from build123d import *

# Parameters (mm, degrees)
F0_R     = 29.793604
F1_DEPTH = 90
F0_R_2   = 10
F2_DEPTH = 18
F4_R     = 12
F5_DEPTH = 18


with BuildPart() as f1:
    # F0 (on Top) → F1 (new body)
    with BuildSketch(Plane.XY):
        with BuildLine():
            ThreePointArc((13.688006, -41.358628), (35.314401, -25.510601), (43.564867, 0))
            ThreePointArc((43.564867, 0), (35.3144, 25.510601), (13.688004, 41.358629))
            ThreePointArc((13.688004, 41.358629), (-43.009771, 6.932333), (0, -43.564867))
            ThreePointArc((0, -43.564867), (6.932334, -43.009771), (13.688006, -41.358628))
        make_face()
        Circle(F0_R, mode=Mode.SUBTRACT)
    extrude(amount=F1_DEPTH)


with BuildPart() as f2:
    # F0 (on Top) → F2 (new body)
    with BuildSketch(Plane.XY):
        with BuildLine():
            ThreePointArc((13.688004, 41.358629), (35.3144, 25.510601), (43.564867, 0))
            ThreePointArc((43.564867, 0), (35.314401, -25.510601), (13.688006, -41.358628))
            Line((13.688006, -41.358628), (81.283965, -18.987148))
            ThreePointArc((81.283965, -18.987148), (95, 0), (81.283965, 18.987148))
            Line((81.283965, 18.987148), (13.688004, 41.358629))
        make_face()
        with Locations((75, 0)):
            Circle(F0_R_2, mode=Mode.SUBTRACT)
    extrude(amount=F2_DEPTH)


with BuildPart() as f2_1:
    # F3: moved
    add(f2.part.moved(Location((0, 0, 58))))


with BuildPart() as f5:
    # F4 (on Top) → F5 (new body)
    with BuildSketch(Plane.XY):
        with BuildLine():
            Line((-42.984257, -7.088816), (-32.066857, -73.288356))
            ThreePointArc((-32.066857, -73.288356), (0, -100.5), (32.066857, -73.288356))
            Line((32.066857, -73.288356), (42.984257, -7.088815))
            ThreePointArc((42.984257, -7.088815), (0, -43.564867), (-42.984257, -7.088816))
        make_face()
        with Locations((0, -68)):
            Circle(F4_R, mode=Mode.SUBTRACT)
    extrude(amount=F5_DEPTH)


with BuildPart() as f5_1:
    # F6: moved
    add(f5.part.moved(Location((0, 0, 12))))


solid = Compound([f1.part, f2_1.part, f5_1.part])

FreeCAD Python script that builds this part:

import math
import FreeCAD as App
import Part
import Sketcher

V = App.Vector

doc = App.newDocument("Part")
params = doc.addObject("Spreadsheet::Sheet", "Params")
for row, (alias, value) in enumerate([
    ("pad1_length", "90 mm"),
    ("sketch2_diameter", "20 mm"),
    ("sketch2_radius", "20 mm"),
    ("pad2_length", "18 mm"),
    ("sketch3_diameter", "24 mm"),
    ("sketch3_radius", "32.5 mm"),
    ("pad3_length", "18 mm"),
], start=1):
    params.set(f"A{row}", alias)
    params.set(f"B{row}", "=" + value)
    params.setAlias(f"B{row}", alias)

body = doc.addObject("PartDesign::Body", "Body")

sketch1 = doc.addObject("Sketcher::SketchObject", "Sketch")
body.addObject(sketch1)
sketch1.AttachmentSupport = (doc.XY_Plane, [""])
sketch1.MapMode = "FlatFace"
sketch1.addGeometry(Part.ArcOfCircle(Part.Circle(V(0.000003, -0.000002, 0), V(0, 0, 1), 43.564864), math.radians(-71.687582), math.radians(0.000002)), False)
sketch1.addGeometry(Part.ArcOfCircle(Part.Circle(V(-0.000002, -0.000001, 0), V(0, 0, 1), 43.564869), math.radians(0.000001), math.radians(71.68758)), False)
sketch1.addGeometry(Part.ArcOfCircle(Part.Circle(V(0, 0, 0), V(0, 0, 1), 43.564867), math.radians(71.687582), math.radians(270)), False)
sketch1.addGeometry(Part.ArcOfCircle(Part.Circle(V(0.000003, -0.000026, 0), V(0, 0, 1), 43.564841), math.radians(-90.000005), math.radians(-71.687573)), False)
sketch1.addGeometry(Part.Circle(V(0, 0, 0), V(0, 0, 1), 29.793604), False)
sketch1.addConstraint(Sketcher.Constraint("Coincident", 0, 2, 1, 1))
sketch1.addConstraint(Sketcher.Constraint("Coincident", 1, 2, 2, 1))
sketch1.addConstraint(Sketcher.Constraint("Coincident", 2, 2, 3, 1))
sketch1.addConstraint(Sketcher.Constraint("Coincident", 3, 2, 0, 1))
sketch1.addConstraint(Sketcher.Constraint("Coincident", 0, 3, -1, 1))
sketch1.addConstraint(Sketcher.Constraint("Coincident", 1, 3, -1, 1))
sketch1.addConstraint(Sketcher.Constraint("Coincident", 2, 3, -1, 1))
sketch1.addConstraint(Sketcher.Constraint("Coincident", 4, 3, -1, 1))
sketch1.addConstraint(Sketcher.Constraint("PointOnObject", 0, 2, -1))
sketch1.addConstraint(Sketcher.Constraint("PointOnObject", 2, 2, -2))
sketch1.addConstraint(Sketcher.Constraint("Radius", 1, 43.564869))
sketch1.addConstraint(Sketcher.Constraint("Radius", 3, 43.564841))
sketch1.addConstraint(Sketcher.Constraint("Diameter", 4, 59.587208))
sketch1.addConstraint(Sketcher.Constraint("DistanceX", 0, 3, 1, 2, 13.688001))
sketch1.addConstraint(Sketcher.Constraint("DistanceY", 3, 2, -1, 1, 41.358628))
pad1 = doc.addObject("PartDesign::Pad", "Pad")
body.addObject(pad1)
pad1.Profile = sketch1
pad1.setExpression("Length", "Params.pad1_length")
body2 = doc.addObject("PartDesign::Body", "Body001")

sketch2 = doc.addObject("Sketcher::SketchObject", "Sketch001")
body2.addObject(sketch2)
sketch2.AttachmentSupport = (doc.getObject("XY_Plane001"), [""])
sketch2.MapMode = "FlatFace"
sketch2.addGeometry(Part.ArcOfCircle(Part.Circle(V(0, 0, 0), V(0, 0, 1), 44), math.radians(0), math.radians(72)), False)
sketch2.addGeometry(Part.ArcOfCircle(Part.Circle(V(0, 0, 0), V(0, 0, 1), 44), math.radians(-72), math.radians(0)), False)
sketch2.addGeometry(Part.LineSegment(V(14, -41, 0), V(81, -19, 0)), False)
sketch2.addGeometry(Part.ArcOfCircle(Part.Circle(V(75, 0, 0), V(0, 0, 1), 20), math.radians(-72), math.radians(72)), False)
sketch2.addGeometry(Part.LineSegment(V(81, 19, 0), V(14, 41, 0)), False)
sketch2.addGeometry(Part.Circle(V(75, 0, 0), V(0, 0, 1), 10), False)
sketch2.addConstraint(Sketcher.Constraint("Tangent", 0, 1, 1, 2))
sketch2.addConstraint(Sketcher.Constraint("Tangent", 1, 1, 2, 1))
sketch2.addConstraint(Sketcher.Constraint("Tangent", 2, 2, 3, 1))
sketch2.addConstraint(Sketcher.Constraint("Tangent", 3, 2, 4, 1))
sketch2.addConstraint(Sketcher.Constraint("Tangent", 4, 2, 0, 2))
sketch2.addConstraint(Sketcher.Constraint("Coincident", 0, 3, -1, 1))
sketch2.addConstraint(Sketcher.Constraint("Coincident", 5, 3, 3, 3))
sketch2.addConstraint(Sketcher.Constraint("Symmetric", 2, 2, 3, 2, -1))
sketch2.addConstraint(Sketcher.Constraint("PointOnObject", 0, 1, -1))
sketch2.addConstraint(Sketcher.Constraint("Diameter", 5, 20.0))
sketch2.addConstraint(Sketcher.Constraint("Radius", 3, 20.0))
sketch2.addConstraint(Sketcher.Constraint("DistanceX", -1, 1, 3, 3, 75.0))
sketch2.addConstraint(Sketcher.Constraint("Radius", 0, 43.564869))
sketch2.setExpression("Constraints[9]", "Params.sketch2_diameter")
sketch2.setExpression("Constraints[10]", "Params.sketch2_radius")
pad2 = doc.addObject("PartDesign::Pad", "Pad001")
body2.addObject(pad2)
pad2.Profile = sketch2
pad2.setExpression("Length", "Params.pad2_length")
body3 = doc.addObject("PartDesign::Body", "Body002")
doc.recompute()

body2.Placement = App.Placement(V(0, 0, 58), App.Rotation(V(0, 0, 1), 0))
boolean = doc.addObject("PartDesign::Boolean", "Boolean")
body3.addObject(boolean)
boolean.Type = "Fuse"
boolean.addObjects([body2])
body4 = doc.addObject("PartDesign::Body", "Body003")

sketch3 = doc.addObject("Sketcher::SketchObject", "Sketch002")
body4.addObject(sketch3)
sketch3.AttachmentSupport = (doc.getObject("XY_Plane003"), [""])
sketch3.MapMode = "FlatFace"
sketch3.addGeometry(Part.LineSegment(V(-43, -7, 0), V(-32, -73, 0)), False)
sketch3.addGeometry(Part.ArcOfCircle(Part.Circle(V(0, -68, 0), V(0, 0, 1), 33), math.radians(-171), math.radians(-9)), False)
sketch3.addGeometry(Part.LineSegment(V(32, -73, 0), V(43, -7, 0)), False)
sketch3.addGeometry(Part.ArcOfCircle(Part.Circle(V(0, 0, 0), V(0, 0, 1), 44), math.radians(-171), math.radians(-9)), False)
sketch3.addGeometry(Part.Circle(V(0, -68, 0), V(0, 0, 1), 12), False)
sketch3.addConstraint(Sketcher.Constraint("Tangent", 0, 2, 1, 1))
sketch3.addConstraint(Sketcher.Constraint("Tangent", 1, 2, 2, 1))
sketch3.addConstraint(Sketcher.Constraint("Tangent", 2, 2, 3, 2))
sketch3.addConstraint(Sketcher.Constraint("Tangent", 3, 1, 0, 1))
sketch3.addConstraint(Sketcher.Constraint("Coincident", 3, 3, -1, 1))
sketch3.addConstraint(Sketcher.Constraint("Coincident", 4, 3, 1, 3))
sketch3.addConstraint(Sketcher.Constraint("PointOnObject", 1, 3, -2))
sketch3.addConstraint(Sketcher.Constraint("Diameter", 4, 24.0))
sketch3.addConstraint(Sketcher.Constraint("Radius", 1, 32.5))
sketch3.addConstraint(Sketcher.Constraint("DistanceY", 1, 3, -1, 1, 68.0))
sketch3.addConstraint(Sketcher.Constraint("Radius", 3, 43.564867))
sketch3.setExpression("Constraints[7]", "Params.sketch3_diameter")
sketch3.setExpression("Constraints[8]", "Params.sketch3_radius")
pad3 = doc.addObject("PartDesign::Pad", "Pad002")
body4.addObject(pad3)
pad3.Profile = sketch3
pad3.setExpression("Length", "Params.pad3_length")
body5 = doc.addObject("PartDesign::Body", "Body004")
doc.recompute()

body4.Placement = App.Placement(V(0, 0, 12), App.Rotation(V(0, 0, 1), 0))
boolean2 = doc.addObject("PartDesign::Boolean", "Boolean001")
body5.addObject(boolean2)
boolean2.Type = "Fuse"
boolean2.addObjects([body4])

doc.recompute()
